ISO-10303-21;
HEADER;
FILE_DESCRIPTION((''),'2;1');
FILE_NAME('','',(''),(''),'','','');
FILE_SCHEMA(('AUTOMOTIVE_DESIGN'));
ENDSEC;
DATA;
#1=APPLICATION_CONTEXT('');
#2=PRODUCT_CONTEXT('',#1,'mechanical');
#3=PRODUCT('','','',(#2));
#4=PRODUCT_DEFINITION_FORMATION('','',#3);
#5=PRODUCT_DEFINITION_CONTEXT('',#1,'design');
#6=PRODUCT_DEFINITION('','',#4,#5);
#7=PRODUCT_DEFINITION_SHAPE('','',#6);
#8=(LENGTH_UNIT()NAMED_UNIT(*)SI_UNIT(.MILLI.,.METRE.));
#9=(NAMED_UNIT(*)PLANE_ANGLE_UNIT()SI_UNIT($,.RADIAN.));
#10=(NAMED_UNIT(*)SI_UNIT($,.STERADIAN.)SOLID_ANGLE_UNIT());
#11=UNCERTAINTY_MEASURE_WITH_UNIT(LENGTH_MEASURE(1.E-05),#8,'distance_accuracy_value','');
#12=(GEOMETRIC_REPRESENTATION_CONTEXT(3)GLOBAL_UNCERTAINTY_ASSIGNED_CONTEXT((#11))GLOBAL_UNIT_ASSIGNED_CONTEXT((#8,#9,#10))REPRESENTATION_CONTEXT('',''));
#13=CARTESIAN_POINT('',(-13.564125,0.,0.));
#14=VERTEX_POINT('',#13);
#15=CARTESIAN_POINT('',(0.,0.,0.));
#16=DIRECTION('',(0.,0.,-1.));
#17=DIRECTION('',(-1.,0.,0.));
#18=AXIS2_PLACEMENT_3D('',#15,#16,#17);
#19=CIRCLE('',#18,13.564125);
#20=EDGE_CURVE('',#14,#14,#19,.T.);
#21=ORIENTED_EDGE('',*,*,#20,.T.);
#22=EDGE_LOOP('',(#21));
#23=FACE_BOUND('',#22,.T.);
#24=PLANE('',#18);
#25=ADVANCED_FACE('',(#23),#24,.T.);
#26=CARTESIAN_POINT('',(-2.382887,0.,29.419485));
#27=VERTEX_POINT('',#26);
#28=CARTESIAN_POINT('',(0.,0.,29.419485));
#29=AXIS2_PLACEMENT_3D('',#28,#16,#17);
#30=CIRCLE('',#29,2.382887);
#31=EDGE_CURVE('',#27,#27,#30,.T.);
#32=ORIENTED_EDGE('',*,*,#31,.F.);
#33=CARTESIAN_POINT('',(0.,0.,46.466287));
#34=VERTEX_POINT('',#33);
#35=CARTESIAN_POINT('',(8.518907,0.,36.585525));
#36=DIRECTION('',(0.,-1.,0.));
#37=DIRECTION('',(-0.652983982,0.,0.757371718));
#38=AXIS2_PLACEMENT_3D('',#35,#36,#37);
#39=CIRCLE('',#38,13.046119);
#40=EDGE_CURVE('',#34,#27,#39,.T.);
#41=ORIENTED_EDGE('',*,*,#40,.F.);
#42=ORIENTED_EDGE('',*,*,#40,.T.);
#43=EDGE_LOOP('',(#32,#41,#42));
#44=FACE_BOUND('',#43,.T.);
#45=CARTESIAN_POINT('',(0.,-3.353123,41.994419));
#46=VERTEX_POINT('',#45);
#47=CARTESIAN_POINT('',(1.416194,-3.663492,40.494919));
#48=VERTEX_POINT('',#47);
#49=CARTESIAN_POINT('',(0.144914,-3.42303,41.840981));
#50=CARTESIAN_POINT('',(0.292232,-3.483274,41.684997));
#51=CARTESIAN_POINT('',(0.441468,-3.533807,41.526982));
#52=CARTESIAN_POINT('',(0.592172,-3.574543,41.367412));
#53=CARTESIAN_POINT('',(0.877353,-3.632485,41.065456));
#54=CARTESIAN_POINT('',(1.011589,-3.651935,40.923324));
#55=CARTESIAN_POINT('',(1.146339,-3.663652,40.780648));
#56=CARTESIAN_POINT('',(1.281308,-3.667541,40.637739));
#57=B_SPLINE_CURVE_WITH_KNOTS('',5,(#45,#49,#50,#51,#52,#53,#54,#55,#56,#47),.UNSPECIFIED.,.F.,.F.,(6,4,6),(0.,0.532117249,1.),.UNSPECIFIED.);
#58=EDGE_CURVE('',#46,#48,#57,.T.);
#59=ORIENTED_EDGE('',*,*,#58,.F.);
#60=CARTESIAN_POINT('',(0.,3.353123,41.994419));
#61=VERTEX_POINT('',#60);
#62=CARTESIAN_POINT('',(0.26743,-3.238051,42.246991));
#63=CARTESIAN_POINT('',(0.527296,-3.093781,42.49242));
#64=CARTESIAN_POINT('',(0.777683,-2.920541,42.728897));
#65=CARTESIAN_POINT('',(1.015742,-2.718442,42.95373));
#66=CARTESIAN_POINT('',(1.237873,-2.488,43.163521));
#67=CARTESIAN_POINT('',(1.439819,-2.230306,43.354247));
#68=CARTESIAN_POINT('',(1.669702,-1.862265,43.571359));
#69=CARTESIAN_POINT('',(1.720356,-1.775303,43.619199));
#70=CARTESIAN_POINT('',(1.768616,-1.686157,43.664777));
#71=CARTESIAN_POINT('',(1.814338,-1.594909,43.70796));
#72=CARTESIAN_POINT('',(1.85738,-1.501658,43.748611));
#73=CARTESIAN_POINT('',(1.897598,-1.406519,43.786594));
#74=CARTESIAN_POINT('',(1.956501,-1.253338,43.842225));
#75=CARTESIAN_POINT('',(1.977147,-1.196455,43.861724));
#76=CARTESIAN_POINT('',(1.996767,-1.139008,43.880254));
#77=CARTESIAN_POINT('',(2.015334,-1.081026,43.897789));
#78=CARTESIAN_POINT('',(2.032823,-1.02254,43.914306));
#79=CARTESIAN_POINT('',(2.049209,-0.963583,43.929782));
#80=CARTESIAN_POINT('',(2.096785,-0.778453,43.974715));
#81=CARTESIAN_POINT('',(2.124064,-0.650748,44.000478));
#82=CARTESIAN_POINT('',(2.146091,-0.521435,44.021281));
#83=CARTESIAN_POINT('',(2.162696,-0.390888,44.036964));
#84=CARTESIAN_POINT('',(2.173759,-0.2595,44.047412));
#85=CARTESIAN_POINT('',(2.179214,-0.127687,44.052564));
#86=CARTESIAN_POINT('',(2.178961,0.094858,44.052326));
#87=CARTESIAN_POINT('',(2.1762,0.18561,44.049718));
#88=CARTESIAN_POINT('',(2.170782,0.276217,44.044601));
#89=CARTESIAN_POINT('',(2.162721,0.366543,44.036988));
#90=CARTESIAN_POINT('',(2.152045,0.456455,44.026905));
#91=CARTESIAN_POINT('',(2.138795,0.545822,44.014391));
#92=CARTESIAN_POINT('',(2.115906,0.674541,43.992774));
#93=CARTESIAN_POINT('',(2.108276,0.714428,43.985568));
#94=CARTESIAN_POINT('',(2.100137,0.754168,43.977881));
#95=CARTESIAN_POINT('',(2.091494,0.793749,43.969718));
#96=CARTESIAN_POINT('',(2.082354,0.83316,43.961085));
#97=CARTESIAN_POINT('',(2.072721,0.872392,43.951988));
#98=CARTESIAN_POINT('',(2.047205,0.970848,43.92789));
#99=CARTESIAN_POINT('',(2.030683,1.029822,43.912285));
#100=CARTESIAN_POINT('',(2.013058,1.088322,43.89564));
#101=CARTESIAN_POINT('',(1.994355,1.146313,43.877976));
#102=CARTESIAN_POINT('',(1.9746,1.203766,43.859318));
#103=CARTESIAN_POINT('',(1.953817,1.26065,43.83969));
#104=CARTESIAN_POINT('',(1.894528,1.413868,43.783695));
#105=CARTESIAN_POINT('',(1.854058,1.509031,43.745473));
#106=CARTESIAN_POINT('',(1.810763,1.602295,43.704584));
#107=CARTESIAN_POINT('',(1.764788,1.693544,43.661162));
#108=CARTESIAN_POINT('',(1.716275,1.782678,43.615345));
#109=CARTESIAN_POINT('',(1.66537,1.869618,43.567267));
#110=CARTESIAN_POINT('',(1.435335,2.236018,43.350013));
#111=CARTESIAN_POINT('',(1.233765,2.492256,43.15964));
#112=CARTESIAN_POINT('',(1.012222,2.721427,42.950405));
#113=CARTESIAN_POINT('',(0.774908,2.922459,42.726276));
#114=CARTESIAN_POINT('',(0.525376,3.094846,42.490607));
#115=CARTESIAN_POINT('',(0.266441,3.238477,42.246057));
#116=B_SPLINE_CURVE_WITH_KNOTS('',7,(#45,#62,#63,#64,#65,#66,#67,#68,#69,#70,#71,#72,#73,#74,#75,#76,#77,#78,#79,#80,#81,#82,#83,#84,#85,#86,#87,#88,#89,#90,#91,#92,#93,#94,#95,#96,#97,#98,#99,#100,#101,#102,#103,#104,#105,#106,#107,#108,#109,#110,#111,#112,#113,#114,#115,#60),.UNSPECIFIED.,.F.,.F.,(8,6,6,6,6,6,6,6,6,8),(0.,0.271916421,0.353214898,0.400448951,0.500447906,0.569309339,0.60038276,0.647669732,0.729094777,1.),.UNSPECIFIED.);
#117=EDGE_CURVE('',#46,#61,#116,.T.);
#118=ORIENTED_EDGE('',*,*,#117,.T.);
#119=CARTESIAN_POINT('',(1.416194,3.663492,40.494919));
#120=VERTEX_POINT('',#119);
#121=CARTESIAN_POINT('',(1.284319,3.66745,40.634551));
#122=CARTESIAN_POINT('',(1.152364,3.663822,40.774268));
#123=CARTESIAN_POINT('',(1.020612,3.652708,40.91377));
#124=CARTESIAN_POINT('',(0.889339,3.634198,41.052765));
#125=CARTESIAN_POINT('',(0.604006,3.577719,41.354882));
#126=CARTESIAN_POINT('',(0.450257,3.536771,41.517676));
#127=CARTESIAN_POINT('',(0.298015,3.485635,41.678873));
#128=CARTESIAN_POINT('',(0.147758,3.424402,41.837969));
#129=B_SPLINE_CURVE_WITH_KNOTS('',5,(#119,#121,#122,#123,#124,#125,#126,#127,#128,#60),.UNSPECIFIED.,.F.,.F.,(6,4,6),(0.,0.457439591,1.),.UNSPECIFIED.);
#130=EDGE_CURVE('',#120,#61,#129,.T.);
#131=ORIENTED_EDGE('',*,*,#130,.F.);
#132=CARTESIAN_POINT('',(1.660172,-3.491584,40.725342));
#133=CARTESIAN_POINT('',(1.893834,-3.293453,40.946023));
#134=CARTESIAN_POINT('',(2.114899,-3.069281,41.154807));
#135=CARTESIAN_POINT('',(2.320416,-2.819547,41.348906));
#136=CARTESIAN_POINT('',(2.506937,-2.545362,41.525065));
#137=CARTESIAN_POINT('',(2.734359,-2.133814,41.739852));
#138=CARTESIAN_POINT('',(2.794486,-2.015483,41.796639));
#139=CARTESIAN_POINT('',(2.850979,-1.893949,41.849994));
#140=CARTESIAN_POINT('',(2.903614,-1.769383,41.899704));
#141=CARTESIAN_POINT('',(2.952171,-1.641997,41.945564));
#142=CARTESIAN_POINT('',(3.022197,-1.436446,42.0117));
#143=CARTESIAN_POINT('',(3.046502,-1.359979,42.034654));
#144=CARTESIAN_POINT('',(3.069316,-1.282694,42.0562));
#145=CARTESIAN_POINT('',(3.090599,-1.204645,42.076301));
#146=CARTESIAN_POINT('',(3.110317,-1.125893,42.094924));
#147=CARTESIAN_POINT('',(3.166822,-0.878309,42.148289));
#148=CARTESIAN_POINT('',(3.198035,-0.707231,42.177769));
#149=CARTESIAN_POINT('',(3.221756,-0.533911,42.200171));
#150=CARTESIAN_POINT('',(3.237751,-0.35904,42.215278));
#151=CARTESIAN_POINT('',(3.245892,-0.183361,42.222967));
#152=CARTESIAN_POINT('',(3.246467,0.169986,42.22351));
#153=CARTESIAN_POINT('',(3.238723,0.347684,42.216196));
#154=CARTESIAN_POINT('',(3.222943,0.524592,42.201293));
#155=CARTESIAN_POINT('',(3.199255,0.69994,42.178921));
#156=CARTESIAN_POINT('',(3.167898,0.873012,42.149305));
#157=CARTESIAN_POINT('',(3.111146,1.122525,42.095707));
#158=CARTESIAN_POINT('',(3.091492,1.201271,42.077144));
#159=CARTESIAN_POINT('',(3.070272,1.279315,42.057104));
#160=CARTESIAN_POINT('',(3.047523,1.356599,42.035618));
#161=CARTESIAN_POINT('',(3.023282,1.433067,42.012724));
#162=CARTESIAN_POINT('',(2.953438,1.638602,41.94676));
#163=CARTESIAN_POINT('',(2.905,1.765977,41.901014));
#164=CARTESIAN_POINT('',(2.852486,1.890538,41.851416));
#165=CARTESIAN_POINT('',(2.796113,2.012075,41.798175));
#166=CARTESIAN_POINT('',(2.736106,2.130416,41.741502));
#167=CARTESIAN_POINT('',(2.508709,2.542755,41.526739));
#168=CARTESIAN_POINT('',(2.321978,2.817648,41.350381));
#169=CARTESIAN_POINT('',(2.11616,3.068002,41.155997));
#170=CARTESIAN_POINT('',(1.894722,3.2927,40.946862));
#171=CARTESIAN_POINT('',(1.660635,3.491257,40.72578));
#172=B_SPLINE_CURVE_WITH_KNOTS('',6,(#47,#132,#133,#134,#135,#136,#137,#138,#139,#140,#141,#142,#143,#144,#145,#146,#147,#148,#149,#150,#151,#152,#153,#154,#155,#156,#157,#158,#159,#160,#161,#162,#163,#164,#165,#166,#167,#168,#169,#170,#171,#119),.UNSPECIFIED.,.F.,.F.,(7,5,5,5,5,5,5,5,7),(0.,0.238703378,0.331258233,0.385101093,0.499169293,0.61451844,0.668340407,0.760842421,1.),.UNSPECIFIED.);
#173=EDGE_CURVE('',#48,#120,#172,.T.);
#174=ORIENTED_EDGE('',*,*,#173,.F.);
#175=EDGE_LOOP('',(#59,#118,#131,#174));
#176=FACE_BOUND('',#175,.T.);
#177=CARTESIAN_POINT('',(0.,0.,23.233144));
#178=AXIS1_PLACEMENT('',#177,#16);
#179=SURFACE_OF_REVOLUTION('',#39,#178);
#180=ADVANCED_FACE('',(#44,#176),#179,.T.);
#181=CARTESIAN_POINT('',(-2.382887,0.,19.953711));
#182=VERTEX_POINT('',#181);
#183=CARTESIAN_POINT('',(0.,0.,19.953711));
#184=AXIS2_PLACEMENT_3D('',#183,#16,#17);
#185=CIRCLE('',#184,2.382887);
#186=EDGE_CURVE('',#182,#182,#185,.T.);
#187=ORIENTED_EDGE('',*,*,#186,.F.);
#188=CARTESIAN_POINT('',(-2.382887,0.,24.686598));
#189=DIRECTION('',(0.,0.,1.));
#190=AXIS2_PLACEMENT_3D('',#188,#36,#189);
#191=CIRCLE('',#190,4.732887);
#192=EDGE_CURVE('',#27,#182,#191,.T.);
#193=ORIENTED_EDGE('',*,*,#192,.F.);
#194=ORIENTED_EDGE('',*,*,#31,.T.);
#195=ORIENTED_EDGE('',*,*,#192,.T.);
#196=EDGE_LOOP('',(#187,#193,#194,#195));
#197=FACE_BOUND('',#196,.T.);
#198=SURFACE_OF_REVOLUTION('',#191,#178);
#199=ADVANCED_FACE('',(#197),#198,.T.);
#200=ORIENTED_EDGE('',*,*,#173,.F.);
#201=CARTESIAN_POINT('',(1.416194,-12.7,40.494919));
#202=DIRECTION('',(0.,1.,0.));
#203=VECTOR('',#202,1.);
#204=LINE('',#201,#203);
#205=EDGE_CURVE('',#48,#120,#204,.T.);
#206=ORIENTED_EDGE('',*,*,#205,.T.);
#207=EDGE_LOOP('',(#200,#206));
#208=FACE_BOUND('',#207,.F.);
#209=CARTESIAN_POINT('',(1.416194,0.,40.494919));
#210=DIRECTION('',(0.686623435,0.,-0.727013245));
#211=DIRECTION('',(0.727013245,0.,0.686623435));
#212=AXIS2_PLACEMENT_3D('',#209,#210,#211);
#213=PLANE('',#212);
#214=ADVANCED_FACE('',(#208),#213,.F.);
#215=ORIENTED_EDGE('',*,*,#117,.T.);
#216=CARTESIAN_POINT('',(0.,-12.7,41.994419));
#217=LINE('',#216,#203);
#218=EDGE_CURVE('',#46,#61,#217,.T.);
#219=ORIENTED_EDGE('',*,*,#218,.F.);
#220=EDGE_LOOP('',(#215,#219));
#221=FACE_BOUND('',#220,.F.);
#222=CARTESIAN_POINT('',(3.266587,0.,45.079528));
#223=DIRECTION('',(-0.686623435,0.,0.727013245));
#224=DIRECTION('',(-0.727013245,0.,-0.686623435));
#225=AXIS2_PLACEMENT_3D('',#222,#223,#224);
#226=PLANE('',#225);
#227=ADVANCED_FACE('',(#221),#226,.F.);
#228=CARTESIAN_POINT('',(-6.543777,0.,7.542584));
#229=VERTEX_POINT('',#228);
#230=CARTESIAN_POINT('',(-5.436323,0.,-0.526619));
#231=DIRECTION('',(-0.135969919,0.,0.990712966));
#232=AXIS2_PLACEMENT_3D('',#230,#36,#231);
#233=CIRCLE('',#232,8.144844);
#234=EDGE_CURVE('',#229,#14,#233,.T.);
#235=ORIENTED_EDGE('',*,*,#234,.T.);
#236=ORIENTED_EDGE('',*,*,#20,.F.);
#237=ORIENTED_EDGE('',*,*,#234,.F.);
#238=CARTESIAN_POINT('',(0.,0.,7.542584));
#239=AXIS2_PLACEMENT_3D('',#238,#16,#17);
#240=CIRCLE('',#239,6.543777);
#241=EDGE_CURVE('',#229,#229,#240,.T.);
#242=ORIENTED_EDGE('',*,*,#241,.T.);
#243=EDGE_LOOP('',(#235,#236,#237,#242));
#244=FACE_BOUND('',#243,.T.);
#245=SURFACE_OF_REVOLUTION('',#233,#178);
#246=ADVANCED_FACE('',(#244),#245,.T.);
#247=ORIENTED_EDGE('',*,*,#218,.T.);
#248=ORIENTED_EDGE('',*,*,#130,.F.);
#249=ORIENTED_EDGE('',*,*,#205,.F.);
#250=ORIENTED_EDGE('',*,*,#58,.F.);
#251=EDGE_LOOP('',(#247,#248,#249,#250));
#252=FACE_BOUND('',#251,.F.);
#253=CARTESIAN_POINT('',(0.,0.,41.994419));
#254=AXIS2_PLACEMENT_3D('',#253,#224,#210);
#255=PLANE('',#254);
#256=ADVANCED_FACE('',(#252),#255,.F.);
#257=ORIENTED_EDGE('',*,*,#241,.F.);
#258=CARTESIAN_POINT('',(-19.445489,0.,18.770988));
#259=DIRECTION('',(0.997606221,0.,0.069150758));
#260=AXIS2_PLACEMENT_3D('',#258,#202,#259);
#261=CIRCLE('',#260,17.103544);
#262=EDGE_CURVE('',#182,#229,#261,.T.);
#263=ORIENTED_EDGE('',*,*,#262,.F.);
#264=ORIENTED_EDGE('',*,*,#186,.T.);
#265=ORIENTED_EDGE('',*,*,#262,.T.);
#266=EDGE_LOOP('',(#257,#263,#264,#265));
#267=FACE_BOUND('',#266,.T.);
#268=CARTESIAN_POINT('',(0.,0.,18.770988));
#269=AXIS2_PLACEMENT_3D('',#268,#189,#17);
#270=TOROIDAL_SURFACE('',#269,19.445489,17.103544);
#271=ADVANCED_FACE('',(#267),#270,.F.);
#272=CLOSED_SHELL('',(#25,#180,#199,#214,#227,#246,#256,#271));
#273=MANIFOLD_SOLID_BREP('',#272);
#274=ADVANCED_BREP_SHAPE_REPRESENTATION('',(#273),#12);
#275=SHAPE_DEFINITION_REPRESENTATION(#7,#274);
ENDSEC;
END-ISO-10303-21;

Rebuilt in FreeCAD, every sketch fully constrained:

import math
import FreeCAD as App
import Part
import Sketcher


def add_polygon(sketch, points):
    """Adds a closed chain of lines whose ends are joined by coincident constraints."""
    first, n = sketch.GeometryCount, len(points)
    for a, b in zip(points, points[1:] + points[:1]):
        sketch.addGeometry(Part.LineSegment(App.Vector(*a, 0), App.Vector(*b, 0)), False)
    for i in range(n):
        sketch.addConstraint(Sketcher.Constraint("Coincident", first + i, 2, first + (i + 1) % n, 1))

doc = App.newDocument("Part")
params = doc.addObject("Spreadsheet::Sheet", "Params")
for row, (alias, value) in enumerate([
    ("revolution_angle", "360 deg"),
    ("pocket1_length", "1 in"),
], start=1):
    params.set(f"A{row}", alias)
    params.set(f"B{row}", "=" + value)
    params.setAlias(f"B{row}", alias)

body = doc.addObject("PartDesign::Body", "Body")

sketch1 = body.newObject("Sketcher::SketchObject", "Sketch")
sketch1.AttachmentSupport = (doc.getObject("XZ_Plane"), [""])
sketch1.MapMode = "FlatFace"
sketch1.addGeometry([
    Part.LineSegment(App.Vector(-13.6, 0, 0), App.Vector(0, 0, 0)),
    Part.LineSegment(App.Vector(0, 0, 0), App.Vector(0, 46.5, 0)),
    Part.ArcOfCircle(Part.Circle(App.Vector(8.5, 36.6, 0), App.Vector(0, 0, 1), 13), math.radians(131), math.radians(213)),
    Part.ArcOfCircle(Part.Circle(App.Vector(-2.4, 24.7, 0), App.Vector(0, 0, 1), 4.7), math.radians(90), math.radians(270)),
    Part.ArcOfCircle(Part.Circle(App.Vector(-19.4, 18.8, 0), App.Vector(0, 0, 1), 17.1), math.radians(-41), math.radians(4)),
    Part.ArcOfCircle(Part.Circle(App.Vector(-5.4, -0.5, 0), App.Vector(0, 0, 1), 8.1), math.radians(98), math.radians(176)),
], False)
sketch1.addConstraint([
    Sketcher.Constraint("Coincident", 0, 2, 1, 1),
    Sketcher.Constraint("Coincident", 1, 2, 2, 1),
    Sketcher.Constraint("Coincident", 2, 2, 3, 1),
    Sketcher.Constraint("Coincident", 3, 2, 4, 2),
    Sketcher.Constraint("Coincident", 4, 1, 5, 1),
    Sketcher.Constraint("Coincident", 5, 2, 0, 1),
    Sketcher.Constraint("Horizontal", 0),
    Sketcher.Constraint("Vertical", 1),
    Sketcher.Constraint("Coincident", 0, 2, -1, 1),
    Sketcher.Constraint("Vertical", 3, 3, 2, 2),
    Sketcher.Constraint("Vertical", 2, 2, 3, 2),
    Sketcher.Constraint("Radius", 2, 13.046119),
    Sketcher.Constraint("Radius", 3, 4.732887),
    Sketcher.Constraint("Radius", 4, 17.103544),
    Sketcher.Constraint("Radius", 5, 8.144844),
    Sketcher.Constraint("DistanceY", -1, 1, 3, 3, 24.686598),
    Sketcher.Constraint("DistanceY", 4, 3, 1, 2, 27.695299),
    Sketcher.Constraint("DistanceY", 2, 2, 1, 2, 17.046802),
    Sketcher.Constraint("DistanceX", 5, 2, 5, 3, 8.127802),
    Sketcher.Constraint("DistanceX", 0, 1, 0, 2, 13.564125),
    Sketcher.Constraint("DistanceX", 4, 3, -1, 1, 19.445489),
])
revolution = body.newObject("PartDesign::Revolution", "Revolution")
revolution.Profile = sketch1
revolution.ReferenceAxis = (sketch1, ["V_Axis"])
revolution.setExpression("Angle", "Params.revolution_angle")

sketch2 = body.newObject("Sketcher::SketchObject", "Sketch001")
sketch2.AttachmentSupport = (doc.getObject("XZ_Plane"), [""])
sketch2.MapMode = "FlatFace"
add_polygon(sketch2, [(1.4, 40.5), (4.9, 43.8), (3.3, 45.1), (0, 42)])
sketch2.addConstraint([
    Sketcher.Constraint("PointOnObject", 2, 2, -2),
    Sketcher.Constraint("Parallel", 0, 2),
    Sketcher.Constraint("Perpendicular", 2, 3),
    Sketcher.Constraint("DistanceY", 3, 2, 2, 2, 1.4995),
    Sketcher.Constraint("Distance", 1, 2.078839),
    Sketcher.Constraint("Distance", 2, 4.493161),
    Sketcher.Constraint("DistanceY", -1, 1, 1, 2, 45.079528),
    Sketcher.Constraint("DistanceY", -1, 1, 2, 2, 41.994419),
])
pocket1 = body.newObject("PartDesign::Pocket", "Pocket")
pocket1.Profile = sketch2
pocket1.setExpression("Length", "Params.pocket1_length")
pocket1.Midplane = True

doc.recompute()
